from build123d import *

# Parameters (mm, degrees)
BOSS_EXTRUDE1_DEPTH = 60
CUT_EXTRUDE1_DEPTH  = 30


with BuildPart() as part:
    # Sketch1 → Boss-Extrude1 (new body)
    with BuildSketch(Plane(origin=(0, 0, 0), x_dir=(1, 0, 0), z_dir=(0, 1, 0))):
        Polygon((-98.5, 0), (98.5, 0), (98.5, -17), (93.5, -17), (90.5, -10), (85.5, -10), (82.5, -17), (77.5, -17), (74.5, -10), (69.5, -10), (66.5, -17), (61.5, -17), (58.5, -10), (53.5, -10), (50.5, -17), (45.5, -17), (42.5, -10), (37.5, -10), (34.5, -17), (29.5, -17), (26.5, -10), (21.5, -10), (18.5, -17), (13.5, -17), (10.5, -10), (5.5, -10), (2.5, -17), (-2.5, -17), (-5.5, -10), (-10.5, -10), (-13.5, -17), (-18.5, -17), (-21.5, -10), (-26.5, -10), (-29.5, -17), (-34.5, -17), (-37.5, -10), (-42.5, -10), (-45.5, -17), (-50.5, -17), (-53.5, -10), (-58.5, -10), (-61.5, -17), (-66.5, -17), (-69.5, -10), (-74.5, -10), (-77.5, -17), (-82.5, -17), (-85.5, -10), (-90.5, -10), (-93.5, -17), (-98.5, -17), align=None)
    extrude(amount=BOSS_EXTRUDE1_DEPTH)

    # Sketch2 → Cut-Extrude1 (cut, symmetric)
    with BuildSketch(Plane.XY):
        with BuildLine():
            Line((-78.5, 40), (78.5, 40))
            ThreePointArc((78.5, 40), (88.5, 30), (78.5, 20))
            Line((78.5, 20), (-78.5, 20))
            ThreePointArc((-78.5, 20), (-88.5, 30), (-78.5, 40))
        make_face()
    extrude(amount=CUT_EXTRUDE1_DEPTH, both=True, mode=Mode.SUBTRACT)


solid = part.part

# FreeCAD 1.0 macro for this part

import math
import FreeCAD as App
import Part
import Sketcher

V = App.Vector

doc = App.newDocument("Part")
body = doc.addObject("PartDesign::Body", "Body")

sketch1 = body.newObject("Sketcher::SketchObject", "Sketch")
sketch1.AttachmentSupport = (doc.getObject("XZ_Plane"), [""])
sketch1.MapMode = "FlatFace"
sketch1.addGeometry([
    Part.LineSegment(V(98.5, 0, 0), V(-98.5, 0, 0)),
    Part.LineSegment(V(-98.5, 0, 0), V(-98.5, 17, 0)),
    Part.LineSegment(V(-98.5, 17, 0), V(-93.5, 17, 0)),
    Part.LineSegment(V(-93.5, 17, 0), V(-90.5, 10, 0)),
    Part.LineSegment(V(-90.5, 10, 0), V(-85.5, 10, 0)),
    Part.LineSegment(V(-85.5, 10, 0), V(-82.5, 17, 0)),
    Part.LineSegment(V(-82.5, 17, 0), V(-77.5, 17, 0)),
    Part.LineSegment(V(-77.5, 17, 0), V(-74.5, 10, 0)),
    Part.LineSegment(V(-74.5, 10, 0), V(-69.5, 10, 0)),
    Part.LineSegment(V(-69.5, 10, 0), V(-66.5, 17, 0)),
    Part.LineSegment(V(-66.5, 17, 0), V(-61.5, 17, 0)),
    Part.LineSegment(V(-61.5, 17, 0), V(-58.5, 10, 0)),
    Part.LineSegment(V(-58.5, 10, 0), V(-53.5, 10, 0)),
    Part.LineSegment(V(-53.5, 10, 0), V(-50.5, 17, 0)),
    Part.LineSegment(V(-50.5, 17, 0), V(-45.5, 17, 0)),
    Part.LineSegment(V(-45.5, 17, 0), V(-42.5, 10, 0)),
    Part.LineSegment(V(-42.5, 10, 0), V(-37.5, 10, 0)),
    Part.LineSegment(V(-37.5, 10, 0), V(-34.5, 17, 0)),
    Part.LineSegment(V(-34.5, 17, 0), V(-29.5, 17, 0)),
    Part.LineSegment(V(-29.5, 17, 0), V(-26.5, 10, 0)),
    Part.LineSegment(V(-26.5, 10, 0), V(-21.5, 10, 0)),
    Part.LineSegment(V(-21.5, 10, 0), V(-18.5, 17, 0)),
    Part.LineSegment(V(-18.5, 17, 0), V(-13.5, 17, 0)),
    Part.LineSegment(V(-13.5, 17, 0), V(-10.5, 10, 0)),
    Part.LineSegment(V(-10.5, 10, 0), V(-5.5, 10, 0)),
    Part.LineSegment(V(-5.5, 10, 0), V(-2.5, 17, 0)),
    Part.LineSegment(V(-2.5, 17, 0), V(2.5, 17, 0)),
    Part.LineSegment(V(2.5, 17, 0), V(5.5, 10, 0)),
    Part.LineSegment(V(5.5, 10, 0), V(10.5, 10, 0)),
    Part.LineSegment(V(10.5, 10, 0), V(13.5, 17, 0)),
    Part.LineSegment(V(13.5, 17, 0), V(18.5, 17, 0)),
    Part.LineSegment(V(18.5, 17, 0), V(21.5, 10, 0)),
    Part.LineSegment(V(21.5, 10, 0), V(26.5, 10, 0)),
    Part.LineSegment(V(26.5, 10, 0), V(29.5, 17, 0)),
    Part.LineSegment(V(29.5, 17, 0), V(34.5, 17, 0)),
    Part.LineSegment(V(34.5, 17, 0), V(37.5, 10, 0)),
    Part.LineSegment(V(37.5, 10, 0), V(42.5, 10, 0)),
    Part.LineSegment(V(42.5, 10, 0), V(45.5, 17, 0)),
    Part.LineSegment(V(45.5, 17, 0), V(50.5, 17, 0)),
    Part.LineSegment(V(50.5, 17, 0), V(53.5, 10, 0)),
    Part.LineSegment(V(53.5, 10, 0), V(58.5, 10, 0)),
    Part.LineSegment(V(58.5, 10, 0), V(61.5, 17, 0)),
    Part.LineSegment(V(61.5, 17, 0), V(66.5, 17, 0)),
    Part.LineSegment(V(66.5, 17, 0), V(69.5, 10, 0)),
    Part.LineSegment(V(69.5, 10, 0), V(74.5, 10, 0)),
    Part.LineSegment(V(74.5, 10, 0), V(77.5, 17, 0)),
    Part.LineSegment(V(77.5, 17, 0), V(82.5, 17, 0)),
    Part.LineSegment(V(82.5, 17, 0), V(85.5, 10, 0)),
    Part.LineSegment(V(85.5, 10, 0), V(90.5, 10, 0)),
    Part.LineSegment(V(90.5, 10, 0), V(93.5, 17, 0)),
    Part.LineSegment(V(93.5, 17, 0), V(98.5, 17, 0)),
    Part.LineSegment(V(98.5, 17, 0), V(98.5, 0, 0)),
], False)
sketch1.addConstraint([
    Sketcher.Constraint("Coincident", 0, 2, 1, 1),
    Sketcher.Constraint("Coincident", 1, 2, 2, 1),
    Sketcher.Constraint("Coincident", 2, 2, 3, 1),
    Sketcher.Constraint("Coincident", 3, 2, 4, 1),
    Sketcher.Constraint("Coincident", 4, 2, 5, 1),
    Sketcher.Constraint("Coincident", 5, 2, 6, 1),
    Sketcher.Constraint("Coincident", 6, 2, 7, 1),
    Sketcher.Constraint("Coincident", 7, 2, 8, 1),
    Sketcher.Constraint("Coincident", 8, 2, 9, 1),
    Sketcher.Constraint("Coincident", 9, 2, 10, 1),
    Sketcher.Constraint("Coincident", 10, 2, 11, 1),
    Sketcher.Constraint("Coincident", 11, 2, 12, 1),
    Sketcher.Constraint("Coincident", 12, 2, 13, 1),
    Sketcher.Constraint("Coincident", 13, 2, 14, 1),
    Sketcher.Constraint("Coincident", 14, 2, 15, 1),
    Sketcher.Constraint("Coincident", 15, 2, 16, 1),
    Sketcher.Constraint("Coincident", 16, 2, 17, 1),
    Sketcher.Constraint("Coincident", 17, 2, 18, 1),
    Sketcher.Constraint("Coincident", 18, 2, 19, 1),
    Sketcher.Constraint("Coincident", 19, 2, 20, 1),
    Sketcher.Constraint("Coincident", 20, 2, 21, 1),
    Sketcher.Constraint("Coincident", 21, 2, 22, 1),
    Sketcher.Constraint("Coincident", 22, 2, 23, 1),
    Sketcher.Constraint("Coincident", 23, 2, 24, 1),
    Sketcher.Constraint("Coincident", 24, 2, 25, 1),
    Sketcher.Constraint("Coincident", 25, 2, 26, 1),
    Sketcher.Constraint("Coincident", 26, 2, 27, 1),
    Sketcher.Constraint("Coincident", 27, 2, 28, 1),
    Sketcher.Constraint("Coincident", 28, 2, 29, 1),
    Sketcher.Constraint("Coincident", 29, 2, 30, 1),
    Sketcher.Constraint("Coincident", 30, 2, 31, 1),
    Sketcher.Constraint("Coincident", 31, 2, 32, 1),
    Sketcher.Constraint("Coincident", 32, 2, 33, 1),
    Sketcher.Constraint("Coincident", 33, 2, 34, 1),
    Sketcher.Constraint("Coincident", 34, 2, 35, 1),
    Sketcher.Constraint("Coincident", 35, 2, 36, 1),
    Sketcher.Constraint("Coincident", 36, 2, 37, 1),
    Sketcher.Constraint("Coincident", 37, 2, 38, 1),
    Sketcher.Constraint("Coincident", 38, 2, 39, 1),
    Sketcher.Constraint("Coincident", 39, 2, 40, 1),
    Sketcher.Constraint("Coincident", 40, 2, 41, 1),
    Sketcher.Constraint("Coincident", 41, 2, 42, 1),
    Sketcher.Constraint("Coincident", 42, 2, 43, 1),
    Sketcher.Constraint("Coincident", 43, 2, 44, 1),
    Sketcher.Constraint("Coincident", 44, 2, 45, 1),
    Sketcher.Constraint("Coincident", 45, 2, 46, 1),
    Sketcher.Constraint("Coincident", 46, 2, 47, 1),
    Sketcher.Constraint("Coincident", 47, 2, 48, 1),
    Sketcher.Constraint("Coincident", 48, 2, 49, 1),
    Sketcher.Constraint("Coincident", 49, 2, 50, 1),
    Sketcher.Constraint("Coincident", 50, 2, 51, 1),
    Sketcher.Constraint("Coincident", 51, 2, 0, 1),
    Sketcher.Constraint("Horizontal", 0),
    Sketcher.Constraint("Vertical", 1),
    Sketcher.Constraint("Horizontal", 2),
    Sketcher.Constraint("Horizontal", 4),
    Sketcher.Constraint("Horizontal", 6),
    Sketcher.Constraint("Horizontal", 8),
    Sketcher.Constraint("Horizontal", 10),
    Sketcher.Constraint("Horizontal", 12),
    Sketcher.Constraint("Horizontal", 14),
    Sketcher.Constraint("Horizontal", 16),
    Sketcher.Constraint("Horizontal", 18),
    Sketcher.Constraint("Horizontal", 20),
    Sketcher.Constraint("Horizontal", 22),
    Sketcher.Constraint("Horizontal", 24),
    Sketcher.Constraint("Horizontal", 26),
    Sketcher.Constraint("Horizontal", 28),
    Sketcher.Constraint("Horizontal", 30),
    Sketcher.Constraint("Horizontal", 32),
    Sketcher.Constraint("Horizontal", 34),
    Sketcher.Constraint("Horizontal", 36),
    Sketcher.Constraint("Horizontal", 38),
    Sketcher.Constraint("Horizontal", 40),
    Sketcher.Constraint("Horizontal", 42),
    Sketcher.Constraint("Horizontal", 44),
    Sketcher.Constraint("Horizontal", 46),
    Sketcher.Constraint("Horizontal", 48),
    Sketcher.Constraint("Horizontal", 50),
    Sketcher.Constraint("Vertical", 51),
    Sketcher.Constraint("Symmetric", 0, 2, 51, 2, -1, 1),
    Sketcher.Constraint("Symmetric", 24, 2, 27, 2, -2),
    Sketcher.Constraint("Symmetric", 22, 2, 29, 2, -2),
    Sketcher.Constraint("Symmetric", 20, 2, 31, 2, -2),
    Sketcher.Constraint("Symmetric", 18, 2, 33, 2, -2),
    Sketcher.Constraint("Symmetric", 16, 2, 35, 2, -2),
    Sketcher.Constraint("Symmetric", 14, 2, 37, 2, -2),
    Sketcher.Constraint("Symmetric", 12, 2, 39, 2, -2),
    Sketcher.Constraint("Symmetric", 10, 2, 41, 2, -2),
    Sketcher.Constraint("Symmetric", 8, 2, 43, 2, -2),
    Sketcher.Constraint("Symmetric", 6, 2, 45, 2, -2),
    Sketcher.Constraint("Symmetric", 4, 2, 47, 2, -2),
    Sketcher.Constraint("Symmetric", 2, 2, 49, 2, -2),
    Sketcher.Constraint("Parallel", 3, 7),
    Sketcher.Constraint("Parallel", 5, 9),
    Sketcher.Constraint("Parallel", 7, 11),
    Sketcher.Constraint("Parallel", 9, 13),
    Sketcher.Constraint("Parallel", 11, 15),
    Sketcher.Constraint("Parallel", 13, 17),
    Sketcher.Constraint("Parallel", 15, 19),
    Sketcher.Constraint("Parallel", 17, 21),
    Sketcher.Constraint("Parallel", 19, 23),
    Sketcher.Constraint("Parallel", 21, 25),
    Sketcher.Constraint("Parallel", 23, 27),
    Sketcher.Constraint("Parallel", 25, 29),
    Sketcher.Constraint("Parallel", 27, 31),
    Sketcher.Constraint("Parallel", 29, 33),
    Sketcher.Constraint("Parallel", 31, 35),
    Sketcher.Constraint("Parallel", 33, 37),
    Sketcher.Constraint("Parallel", 35, 39),
    Sketcher.Constraint("Parallel", 37, 41),
    Sketcher.Constraint("Parallel", 39, 43),
    Sketcher.Constraint("Parallel", 41, 45),
    Sketcher.Constraint("Parallel", 43, 47),
    Sketcher.Constraint("Parallel", 45, 49),
    Sketcher.Constraint("Horizontal", 2, 2, 5, 2),
    Sketcher.Constraint("Horizontal", 4, 2, 7, 2),
    Sketcher.Constraint("Horizontal", 6, 2, 9, 2),
    Sketcher.Constraint("Horizontal", 8, 2, 11, 2),
    Sketcher.Constraint("Horizontal", 10, 2, 13, 2),
    Sketcher.Constraint("Horizontal", 12, 2, 15, 2),
    Sketcher.Constraint("Horizontal", 14, 2, 17, 2),
    Sketcher.Constraint("Horizontal", 16, 2, 19, 2),
    Sketcher.Constraint("Horizontal", 18, 2, 21, 2),
    Sketcher.Constraint("Horizontal", 20, 2, 23, 2),
    Sketcher.Constraint("Horizontal", 22, 2, 25, 2),
    Sketcher.Constraint("Equal", 2, 4),
    Sketcher.Constraint("Equal", 4, 6),
    Sketcher.Constraint("Equal", 6, 8),
    Sketcher.Constraint("Equal", 8, 10),
    Sketcher.Constraint("Equal", 10, 12),
    Sketcher.Constraint("Equal", 12, 14),
    Sketcher.Constraint("Equal", 14, 16),
    Sketcher.Constraint("Equal", 16, 18),
    Sketcher.Constraint("Equal", 18, 20),
    Sketcher.Constraint("Equal", 20, 22),
    Sketcher.Constraint("Equal", 22, 24),
    Sketcher.Constraint("Equal", 24, 26),
    Sketcher.Constraint("Equal", 26, 28),
    Sketcher.Constraint("DistanceX", 0, 2, 0, 1, 197.0),
    Sketcher.Constraint("DistanceX", 2, 1, 2, 2, 5.0),
    Sketcher.Constraint("DistanceY", 1, 1, 1, 2, 17.0),
    Sketcher.Constraint("DistanceY", -1, 1, 3, 2, 10.0),
])
pad1 = body.newObject("PartDesign::Pad", "Pad")
pad1.Profile = sketch1
pad1.Length = 60
pad1.Reversed = True

sketch2 = body.newObject("Sketcher::SketchObject", "Sketch001")
sketch2.AttachmentSupport = (doc.getObject("XY_Plane"), [""])
sketch2.MapMode = "FlatFace"
sketch2.addGeometry([
    Part.LineSegment(V(78.5, 40, 0), V(-78.5, 40, 0)),
    Part.ArcOfCircle(Part.Circle(V(-78.5, 30, 0), V(0, 0, 1), 10), math.radians(90), math.radians(270)),
    Part.LineSegment(V(-78.5, 20, 0), V(78.5, 20, 0)),
    Part.ArcOfCircle(Part.Circle(V(78.5, 30, 0), V(0, 0, 1), 10), math.radians(-90), math.radians(90)),
], False)
sketch2.addConstraint([
    Sketcher.Constraint("Tangent", 0, 2, 1, 1),
    Sketcher.Constraint("Tangent", 1, 2, 2, 1),
    Sketcher.Constraint("Tangent", 2, 2, 3, 1),
    Sketcher.Constraint("Tangent", 3, 2, 0, 1),
    Sketcher.Constraint("Horizontal", 0),
    Sketcher.Constraint("Horizontal", 2),
    Sketcher.Constraint("Radius", 1, 10.0),
    Sketcher.Constraint("DistanceX", 0, 2, 0, 1, 157.0),
    Sketcher.Constraint("DistanceY", -1, 1, 1, 3, 30.0),
    Sketcher.Constraint("DistanceX", 1, 3, -1, 1, 78.5),
])
pocket1 = body.newObject("PartDesign::Pocket", "Pocket")
pocket1.Profile = sketch2
pocket1.Length = 60
pocket1.Midplane = True

doc.recompute()
